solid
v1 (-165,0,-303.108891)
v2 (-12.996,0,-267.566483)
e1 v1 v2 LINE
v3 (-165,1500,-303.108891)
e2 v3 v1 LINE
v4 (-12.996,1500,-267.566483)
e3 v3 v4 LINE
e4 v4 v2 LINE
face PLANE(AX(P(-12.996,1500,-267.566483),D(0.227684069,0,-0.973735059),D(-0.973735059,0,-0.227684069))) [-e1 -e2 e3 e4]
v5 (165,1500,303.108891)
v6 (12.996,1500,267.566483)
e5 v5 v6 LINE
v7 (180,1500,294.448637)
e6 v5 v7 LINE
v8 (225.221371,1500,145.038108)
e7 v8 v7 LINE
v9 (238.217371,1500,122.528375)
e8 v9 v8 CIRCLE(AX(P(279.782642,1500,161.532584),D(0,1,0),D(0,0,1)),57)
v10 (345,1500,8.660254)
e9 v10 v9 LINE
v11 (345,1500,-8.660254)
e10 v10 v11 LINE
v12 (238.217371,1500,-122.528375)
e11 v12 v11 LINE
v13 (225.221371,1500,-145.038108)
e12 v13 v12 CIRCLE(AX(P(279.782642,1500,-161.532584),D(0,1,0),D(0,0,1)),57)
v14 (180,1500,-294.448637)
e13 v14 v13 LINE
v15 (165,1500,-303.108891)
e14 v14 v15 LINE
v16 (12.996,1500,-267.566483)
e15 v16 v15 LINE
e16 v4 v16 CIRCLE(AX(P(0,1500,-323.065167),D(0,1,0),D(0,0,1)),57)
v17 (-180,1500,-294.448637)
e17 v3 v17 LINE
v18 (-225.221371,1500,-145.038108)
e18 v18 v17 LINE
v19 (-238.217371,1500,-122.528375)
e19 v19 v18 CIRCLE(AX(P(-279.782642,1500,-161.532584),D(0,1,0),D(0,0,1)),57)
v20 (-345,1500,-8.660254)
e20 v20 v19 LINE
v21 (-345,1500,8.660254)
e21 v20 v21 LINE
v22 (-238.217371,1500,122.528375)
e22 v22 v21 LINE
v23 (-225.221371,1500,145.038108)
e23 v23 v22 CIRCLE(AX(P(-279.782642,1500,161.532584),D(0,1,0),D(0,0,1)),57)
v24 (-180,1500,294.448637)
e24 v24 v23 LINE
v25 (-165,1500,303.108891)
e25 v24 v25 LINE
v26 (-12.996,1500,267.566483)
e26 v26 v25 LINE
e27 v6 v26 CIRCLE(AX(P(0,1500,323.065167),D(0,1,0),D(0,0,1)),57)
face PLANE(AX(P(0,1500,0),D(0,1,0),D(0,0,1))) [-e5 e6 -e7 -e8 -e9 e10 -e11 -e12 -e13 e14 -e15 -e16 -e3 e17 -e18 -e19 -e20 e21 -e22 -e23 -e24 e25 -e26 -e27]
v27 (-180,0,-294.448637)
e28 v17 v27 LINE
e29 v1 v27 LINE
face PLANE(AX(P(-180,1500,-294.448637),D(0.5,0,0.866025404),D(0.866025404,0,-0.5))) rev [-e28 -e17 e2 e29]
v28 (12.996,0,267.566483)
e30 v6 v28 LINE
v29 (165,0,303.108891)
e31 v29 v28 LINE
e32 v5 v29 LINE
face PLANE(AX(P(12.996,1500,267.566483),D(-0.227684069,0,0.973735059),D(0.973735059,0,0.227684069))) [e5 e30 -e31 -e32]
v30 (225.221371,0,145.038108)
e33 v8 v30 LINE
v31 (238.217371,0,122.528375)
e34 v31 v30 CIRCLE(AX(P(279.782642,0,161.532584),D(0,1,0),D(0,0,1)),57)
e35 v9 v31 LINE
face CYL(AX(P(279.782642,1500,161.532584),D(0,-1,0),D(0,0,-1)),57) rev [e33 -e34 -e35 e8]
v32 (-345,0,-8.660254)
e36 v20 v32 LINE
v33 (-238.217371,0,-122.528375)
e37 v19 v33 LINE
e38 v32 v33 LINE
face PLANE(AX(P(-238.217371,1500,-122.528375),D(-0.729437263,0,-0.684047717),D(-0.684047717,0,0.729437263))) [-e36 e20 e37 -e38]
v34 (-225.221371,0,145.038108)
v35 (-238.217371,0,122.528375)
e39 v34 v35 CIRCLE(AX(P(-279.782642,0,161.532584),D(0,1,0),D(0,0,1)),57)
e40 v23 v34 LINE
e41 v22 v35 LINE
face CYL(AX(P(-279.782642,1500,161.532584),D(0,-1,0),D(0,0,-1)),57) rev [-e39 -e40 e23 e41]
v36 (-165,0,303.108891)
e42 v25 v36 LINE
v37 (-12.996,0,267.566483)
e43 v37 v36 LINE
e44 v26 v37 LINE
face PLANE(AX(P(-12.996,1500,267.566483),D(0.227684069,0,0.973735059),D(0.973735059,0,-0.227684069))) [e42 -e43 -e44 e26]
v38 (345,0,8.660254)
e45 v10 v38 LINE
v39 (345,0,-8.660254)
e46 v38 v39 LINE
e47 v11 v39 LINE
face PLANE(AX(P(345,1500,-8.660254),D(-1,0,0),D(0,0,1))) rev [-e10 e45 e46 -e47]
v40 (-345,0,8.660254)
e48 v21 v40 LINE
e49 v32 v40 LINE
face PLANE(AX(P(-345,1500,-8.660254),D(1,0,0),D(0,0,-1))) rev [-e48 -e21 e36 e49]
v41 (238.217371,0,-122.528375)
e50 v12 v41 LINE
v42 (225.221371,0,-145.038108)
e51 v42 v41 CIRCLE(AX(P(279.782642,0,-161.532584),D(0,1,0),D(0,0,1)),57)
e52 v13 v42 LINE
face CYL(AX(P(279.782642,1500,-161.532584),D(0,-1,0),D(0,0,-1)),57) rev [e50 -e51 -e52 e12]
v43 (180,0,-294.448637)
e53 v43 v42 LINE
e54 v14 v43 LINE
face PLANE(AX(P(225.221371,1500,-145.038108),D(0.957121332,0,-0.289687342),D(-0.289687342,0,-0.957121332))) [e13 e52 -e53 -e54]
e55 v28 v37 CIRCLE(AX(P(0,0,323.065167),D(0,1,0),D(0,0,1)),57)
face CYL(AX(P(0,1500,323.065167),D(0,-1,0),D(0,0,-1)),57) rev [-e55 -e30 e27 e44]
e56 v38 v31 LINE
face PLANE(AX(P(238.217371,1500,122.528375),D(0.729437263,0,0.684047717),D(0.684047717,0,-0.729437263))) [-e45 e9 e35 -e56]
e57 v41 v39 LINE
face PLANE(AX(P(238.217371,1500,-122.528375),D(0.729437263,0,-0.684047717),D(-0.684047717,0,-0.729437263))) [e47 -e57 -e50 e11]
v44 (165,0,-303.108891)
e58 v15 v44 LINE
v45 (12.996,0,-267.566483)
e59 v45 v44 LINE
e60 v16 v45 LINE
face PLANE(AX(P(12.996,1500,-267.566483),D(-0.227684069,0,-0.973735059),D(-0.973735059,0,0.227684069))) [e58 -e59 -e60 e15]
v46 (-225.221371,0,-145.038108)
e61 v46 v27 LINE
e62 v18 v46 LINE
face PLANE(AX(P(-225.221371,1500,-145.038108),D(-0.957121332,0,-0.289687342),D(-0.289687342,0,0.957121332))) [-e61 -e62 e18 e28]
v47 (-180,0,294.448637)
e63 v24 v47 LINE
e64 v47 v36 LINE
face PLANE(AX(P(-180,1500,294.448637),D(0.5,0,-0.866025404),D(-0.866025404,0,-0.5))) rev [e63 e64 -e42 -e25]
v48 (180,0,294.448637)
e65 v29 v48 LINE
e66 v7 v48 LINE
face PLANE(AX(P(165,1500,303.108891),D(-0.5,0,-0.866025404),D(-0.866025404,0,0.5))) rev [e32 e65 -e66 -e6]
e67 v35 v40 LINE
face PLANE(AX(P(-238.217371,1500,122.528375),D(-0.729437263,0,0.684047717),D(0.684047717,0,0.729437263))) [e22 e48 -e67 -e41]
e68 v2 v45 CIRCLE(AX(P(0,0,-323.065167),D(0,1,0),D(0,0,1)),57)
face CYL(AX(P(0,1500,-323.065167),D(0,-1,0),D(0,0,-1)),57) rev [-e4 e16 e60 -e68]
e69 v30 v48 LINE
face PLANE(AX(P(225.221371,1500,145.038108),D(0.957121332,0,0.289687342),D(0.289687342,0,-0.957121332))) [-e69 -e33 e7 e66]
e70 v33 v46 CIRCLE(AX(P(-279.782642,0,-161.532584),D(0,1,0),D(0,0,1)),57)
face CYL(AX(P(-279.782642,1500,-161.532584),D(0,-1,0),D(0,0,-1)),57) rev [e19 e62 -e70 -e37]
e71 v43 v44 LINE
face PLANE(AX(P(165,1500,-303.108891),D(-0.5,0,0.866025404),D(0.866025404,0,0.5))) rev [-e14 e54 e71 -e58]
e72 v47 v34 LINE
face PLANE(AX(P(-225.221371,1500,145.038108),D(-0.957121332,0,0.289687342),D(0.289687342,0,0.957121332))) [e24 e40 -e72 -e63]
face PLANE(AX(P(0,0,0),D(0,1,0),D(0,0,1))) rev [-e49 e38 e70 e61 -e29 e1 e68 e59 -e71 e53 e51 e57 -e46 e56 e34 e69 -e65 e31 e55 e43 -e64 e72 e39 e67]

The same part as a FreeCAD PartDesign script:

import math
import FreeCAD as App
import Part
import Sketcher
Q = App.Units.Quantity

doc = App.newDocument("Part")
body = doc.addObject("PartDesign::Body", "Body")

# Sketch on XZ plane
sketch1 = body.newObject("Sketcher::SketchObject", "Sketch")
sketch1.AttachmentSupport = (doc.getObject("XZ_Plane"), [""])
sketch1.MapMode = "FlatFace"
sketch1.addGeometry([
    Part.LineSegment(App.Vector(345, -9, 0), App.Vector(180, -294, 0)),  # 0
    Part.LineSegment(App.Vector(180, -294, 0), App.Vector(165, -303, 0)),  # 1
    Part.LineSegment(App.Vector(165, -303, 0), App.Vector(-165, -303, 0)),  # 2
    Part.LineSegment(App.Vector(-165, -303, 0), App.Vector(-180, -294, 0)),  # 3
    Part.LineSegment(App.Vector(-180, -294, 0), App.Vector(-345, -9, 0)),  # 4
    Part.LineSegment(App.Vector(-345, -9, 0), App.Vector(-345, 9, 0)),  # 5
    Part.LineSegment(App.Vector(-345, 9, 0), App.Vector(-180, 294, 0)),  # 6
    Part.LineSegment(App.Vector(-180, 294, 0), App.Vector(-165, 303, 0)),  # 7
    Part.LineSegment(App.Vector(-165, 303, 0), App.Vector(165, 303, 0)),  # 8
    Part.LineSegment(App.Vector(165, 303, 0), App.Vector(180, 294, 0)),  # 9
    Part.LineSegment(App.Vector(180, 294, 0), App.Vector(345, 9, 0)),  # 10
    Part.LineSegment(App.Vector(345, 9, 0), App.Vector(345, -9, 0)),  # 11
], False)
sketch1.addConstraint([
    Sketcher.Constraint("Coincident", 0, 2, 1, 1),
    Sketcher.Constraint("Coincident", 1, 2, 2, 1),
    Sketcher.Constraint("Coincident", 2, 2, 3, 1),
    Sketcher.Constraint("Coincident", 3, 2, 4, 1),
    Sketcher.Constraint("Coincident", 4, 2, 5, 1),
    Sketcher.Constraint("Coincident", 5, 2, 6, 1),
    Sketcher.Constraint("Coincident", 6, 2, 7, 1),
    Sketcher.Constraint("Coincident", 7, 2, 8, 1),
    Sketcher.Constraint("Coincident", 8, 2, 9, 1),
    Sketcher.Constraint("Coincident", 9, 2, 10, 1),
    Sketcher.Constraint("Coincident", 10, 2, 11, 1),
    Sketcher.Constraint("Coincident", 11, 2, 0, 1),
    Sketcher.Constraint("Horizontal", 2),
    Sketcher.Constraint("Vertical", 5),
    Sketcher.Constraint("Horizontal", 8),
    Sketcher.Constraint("Vertical", 11),
    Sketcher.Constraint("Symmetric", 0, 2, 6, 2, -1, 1),
    Sketcher.Constraint("Symmetric", 1, 2, 7, 2, -1, 1),
    Sketcher.Constraint("Symmetric", 3, 2, 9, 2, -1, 1),
    Sketcher.Constraint("Symmetric", 4, 2, 10, 2, -1, 1),
    Sketcher.Constraint("Symmetric", 0, 2, 3, 2, -2),
    Sketcher.Constraint("Perpendicular", 0, 3),
    Sketcher.Constraint("Perpendicular", 1, 4),
    Sketcher.Constraint("Perpendicular", 3, 6),
    Sketcher.Constraint("Perpendicular", 6, 9),
    Sketcher.Constraint("Horizontal", 5, 2, 10, 2),
    Sketcher.Constraint("DistanceX", 2, 2, 2, 1, 330.0),
    Sketcher.Constraint("Angle", 0, Q("-120 deg")),
    Sketcher.Constraint("Distance", 0, 330.0),
    Sketcher.Constraint("DistanceX", -1, 1, 0, 2, 180.0),
    Sketcher.Constraint("DistanceY", 5, 1, 5, 2, 17.320508),
])
pad1 = body.newObject("PartDesign::Pad", "Pad")
pad1.Profile = sketch1
pad1.Length = 1500
pad1.Reversed = True

# Sketch on XZ plane
sketch2 = body.newObject("Sketcher::SketchObject", "Sketch001")
sketch2.AttachmentSupport = (doc.getObject("XZ_Plane"), [""])
sketch2.MapMode = "FlatFace"
sketch2.addGeometry([
    Part.LineSegment(App.Vector(238, -123, 0), App.Vector(345, -9, 0)),  # 0
    Part.LineSegment(App.Vector(345, -9, 0), App.Vector(380, -29, 0)),  # 1
    Part.LineSegment(App.Vector(380, -29, 0), App.Vector(334, -178, 0)),  # 2
    Part.ArcOfCircle(Part.Circle(App.Vector(280, -162, 0), App.Vector(0, 0, 1), 57), math.radians(-43), math.radians(-17)),  # 3
    Part.LineSegment(App.Vector(321, -201, 0), App.Vector(215, -315, 0)),  # 4
    Part.LineSegment(App.Vector(215, -315, 0), App.Vector(180, -294, 0)),  # 5
    Part.LineSegment(App.Vector(180, -294, 0), App.Vector(225, -145, 0)),  # 6
    Part.ArcOfCircle(Part.Circle(App.Vector(280, -162, 0), App.Vector(0, 0, 1), 57), math.radians(137), math.radians(163)),  # 7
    Part.LineSegment(App.Vector(225, 145, 0), App.Vector(180, 294, 0)),  # 8
    Part.LineSegment(App.Vector(180, 294, 0), App.Vector(215, 314, 0)),  # 9
    Part.LineSegment(App.Vector(215, 314, 0), App.Vector(321, 201, 0)),  # 10
    Part.ArcOfCircle(Part.Circle(App.Vector(280, 162, 0), App.Vector(0, 0, 1), 57), math.radians(17), math.radians(43)),  # 11
    Part.LineSegment(App.Vector(334, 178, 0), App.Vector(380, 29, 0)),  # 12
    Part.LineSegment(App.Vector(380, 29, 0), App.Vector(345, 9, 0)),  # 13
    Part.LineSegment(App.Vector(345, 9, 0), App.Vector(238, 123, 0)),  # 14
    Part.ArcOfCircle(Part.Circle(App.Vector(280, 162, 0), App.Vector(0, 0, 1), 57), math.radians(-163), math.radians(-137)),  # 15
    Part.LineSegment(App.Vector(13, -268, 0), App.Vector(165, -303, 0)),  # 16
    Part.LineSegment(App.Vector(165, -303, 0), App.Vector(165, -343, 0)),  # 17
    Part.LineSegment(App.Vector(165, -343, 0), App.Vector(13, -379, 0)),  # 18
    Part.ArcOfCircle(Part.Circle(App.Vector(0, -323, 0), App.Vector(0, 0, 1), 57), math.radians(-103), math.radians(-77)),  # 19
    Part.LineSegment(App.Vector(-13, -379, 0), App.Vector(-165, -343, 0)),  # 20
    Part.LineSegment(App.Vector(-165, -343, 0), App.Vector(-165, -303, 0)),  # 21
    Part.LineSegment(App.Vector(-165, -303, 0), App.Vector(-13, -268, 0)),  # 22
    Part.ArcOfCircle(Part.Circle(App.Vector(0, -323, 0), App.Vector(0, 0, 1), 57), math.radians(77), math.radians(103)),  # 23
    Part.LineSegment(App.Vector(-13, 268, 0), App.Vector(-165, 303, 0)),  # 24
    Part.LineSegment(App.Vector(-165, 303, 0), App.Vector(-165, 343, 0)),  # 25
    Part.LineSegment(App.Vector(-165, 343, 0), App.Vector(-13, 379, 0)),  # 26
    Part.ArcOfCircle(Part.Circle(App.Vector(0, 323, 0), App.Vector(0, 0, 1), 57), math.radians(77), math.radians(103)),  # 27
    Part.LineSegment(App.Vector(13, 379, 0), App.Vector(165, 343, 0)),  # 28
    Part.LineSegment(App.Vector(165, 343, 0), App.Vector(165, 303, 0)),  # 29
    Part.LineSegment(App.Vector(165, 303, 0), App.Vector(13, 268, 0)),  # 30
    Part.ArcOfCircle(Part.Circle(App.Vector(0, 323, 0), App.Vector(0, 0, 1), 57), math.radians(-103), math.radians(-77)),  # 31
    Part.LineSegment(App.Vector(-238, 123, 0), App.Vector(-345, 9, 0)),  # 32
    Part.LineSegment(App.Vector(-345, 9, 0), App.Vector(-380, 29, 0)),  # 33
    Part.LineSegment(App.Vector(-380, 29, 0), App.Vector(-334, 178, 0)),  # 34
    Part.ArcOfCircle(Part.Circle(App.Vector(-280, 162, 0), App.Vector(0, 0, 1), 57), math.radians(137), math.radians(163)),  # 35
    Part.LineSegment(App.Vector(-321, 201, 0), App.Vector(-215, 315, 0)),  # 36
    Part.LineSegment(App.Vector(-215, 315, 0), App.Vector(-180, 294, 0)),  # 37
    Part.LineSegment(App.Vector(-180, 294, 0), App.Vector(-225, 145, 0)),  # 38
    Part.ArcOfCircle(Part.Circle(App.Vector(-280, 162, 0), App.Vector(0, 0, 1), 57), math.radians(-43), math.radians(-17)),  # 39
    Part.LineSegment(App.Vector(-225, -145, 0), App.Vector(-180, -294, 0)),  # 40
    Part.LineSegment(App.Vector(-180, -294, 0), App.Vector(-215, -314, 0)),  # 41
    Part.LineSegment(App.Vector(-215, -314, 0), App.Vector(-321, -201, 0)),  # 42
    Part.ArcOfCircle(Part.Circle(App.Vector(-280, -162, 0), App.Vector(0, 0, 1), 57), math.radians(-163), math.radians(-137)),  # 43
    Part.LineSegment(App.Vector(-334, -178, 0), App.Vector(-380, -29, 0)),  # 44
    Part.LineSegment(App.Vector(-380, -29, 0), App.Vector(-345, -9, 0)),  # 45
    Part.LineSegment(App.Vector(-345, -9, 0), App.Vector(-238, -123, 0)),  # 46
    Part.ArcOfCircle(Part.Circle(App.Vector(-280, -162, 0), App.Vector(0, 0, 1), 57), math.radians(17), math.radians(43)),  # 47
], False)
sketch2.addConstraint([
    Sketcher.Constraint("Coincident", 0, 2, 1, 1),
    Sketcher.Constraint("Coincident", 1, 2, 2, 1),
    Sketcher.Constraint("Tangent", 2, 2, 3, 2),
    Sketcher.Constraint("Coincident", 3, 1, 4, 1),
    Sketcher.Constraint("Coincident", 4, 2, 5, 1),
    Sketcher.Constraint("Coincident", 5, 2, 6, 1),
    Sketcher.Constraint("Coincident", 6, 2, 7, 2),
    Sketcher.Constraint("Coincident", 7, 1, 0, 1),
    Sketcher.Constraint("Coincident", 8, 2, 9, 1),
    Sketcher.Constraint("Coincident", 9, 2, 10, 1),
    Sketcher.Constraint("Tangent", 10, 2, 11, 2),
    Sketcher.Constraint("Coincident", 11, 1, 12, 1),
    Sketcher.Constraint("Coincident", 12, 2, 13, 1),
    Sketcher.Constraint("Coincident", 13, 2, 14, 1),
    Sketcher.Constraint("Coincident", 14, 2, 15, 2),
    Sketcher.Constraint("Coincident", 15, 1, 8, 1),
    Sketcher.Constraint("Coincident", 16, 2, 17, 1),
    Sketcher.Constraint("Coincident", 17, 2, 18, 1),
    Sketcher.Constraint("Tangent", 18, 2, 19, 2),
    Sketcher.Constraint("Coincident", 19, 1, 20, 1),
    Sketcher.Constraint("Coincident", 20, 2, 21, 1),
    Sketcher.Constraint("Coincident", 21, 2, 22, 1),
    Sketcher.Constraint("Coincident", 22, 2, 23, 2),
    Sketcher.Constraint("Coincident", 23, 1, 16, 1),
    Sketcher.Constraint("Coincident", 24, 2, 25, 1),
    Sketcher.Constraint("Coincident", 25, 2, 26, 1),
    Sketcher.Constraint("Tangent", 26, 2, 27, 2),
    Sketcher.Constraint("Coincident", 27, 1, 28, 1),
    Sketcher.Constraint("Coincident", 28, 2, 29, 1),
    Sketcher.Constraint("Coincident", 29, 2, 30, 1),
    Sketcher.Constraint("Coincident", 30, 2, 31, 2),
    Sketcher.Constraint("Coincident", 31, 1, 24, 1),
    Sketcher.Constraint("Coincident", 32, 2, 33, 1),
    Sketcher.Constraint("Coincident", 33, 2, 34, 1),
    Sketcher.Constraint("Tangent", 34, 2, 35, 2),
    Sketcher.Constraint("Coincident", 35, 1, 36, 1),
    Sketcher.Constraint("Coincident", 36, 2, 37, 1),
    Sketcher.Constraint("Coincident", 37, 2, 38, 1),
    Sketcher.Constraint("Coincident", 38, 2, 39, 2),
    Sketcher.Constraint("Coincident", 39, 1, 32, 1),
    Sketcher.Constraint("Coincident", 40, 2, 41, 1),
    Sketcher.Constraint("Coincident", 41, 2, 42, 1),
    Sketcher.Constraint("Tangent", 42, 2, 43, 2),
    Sketcher.Constraint("Coincident", 43, 1, 44, 1),
    Sketcher.Constraint("Coincident", 44, 2, 45, 1),
    Sketcher.Constraint("Coincident", 45, 2, 46, 1),
    Sketcher.Constraint("Coincident", 46, 2, 47, 2),
    Sketcher.Constraint("Coincident", 47, 1, 40, 1),
    Sketcher.Constraint("Vertical", 17),
    Sketcher.Constraint("Vertical", 21),
    Sketcher.Constraint("Vertical", 25),
    Sketcher.Constraint("Vertical", 29),
    Sketcher.Constraint("Coincident", 7, 3, 3, 3),
    Sketcher.Constraint("Coincident", 15, 3, 11, 3),
    Sketcher.Constraint("Coincident", 23, 3, 19, 3),
    Sketcher.Constraint("Coincident", 31, 3, 27, 3),
    Sketcher.Constraint("Coincident", 39, 3, 35, 3),
    Sketcher.Constraint("Coincident", 47, 3, 43, 3),
    Sketcher.Constraint("Equal", 3, 7),
    Sketcher.Constraint("Equal", 7, 11),
    Sketcher.Constraint("Equal", 11, 15),
    Sketcher.Constraint("Equal", 15, 19),
    Sketcher.Constraint("Equal", 19, 23),
    Sketcher.Constraint("Equal", 23, 27),
    Sketcher.Constraint("Equal", 27, 31),
    Sketcher.Constraint("Equal", 31, 35),
    Sketcher.Constraint("Equal", 35, 39),
    Sketcher.Constraint("Equal", 39, 43),
    Sketcher.Constraint("Equal", 43, 47),
    Sketcher.Constraint("Symmetric", 19, 3, 27, 3, -1, 1),
    Sketcher.Constraint("Symmetric", 3, 3, 35, 3, -1, 1),
    Sketcher.Constraint("Symmetric", 11, 3, 43, 3, -1, 1),
    Sketcher.Constraint("Symmetric", 16, 2, 24, 2, -1, 1),
    Sketcher.Constraint("Symmetric", 20, 2, 28, 2, -1, 1),
    Sketcher.Constraint("Symmetric", 0, 2, 32, 2, -1, 1),
    Sketcher.Constraint("Symmetric", 1, 2, 33, 2, -1, 1),
    Sketcher.Constraint("Symmetric", 4, 2, 36, 2, -1, 1),
    Sketcher.Constraint("Symmetric", 5, 2, 37, 2, -1, 1),
    Sketcher.Constraint("Symmetric", 8, 2, 40, 2, -1, 1),
    Sketcher.Constraint("Symmetric", 9, 2, 41, 2, -1, 1),
    Sketcher.Constraint("Symmetric", 12, 2, 44, 2, -1, 1),
    Sketcher.Constraint("Symmetric", 13, 2, 45, 2, -1, 1),
    Sketcher.Constraint("Symmetric", 11, 3, 35, 3, -2),
    Sketcher.Constraint("Symmetric", 18, 2, 19, 1, -2),
    Sketcher.Constraint("Symmetric", 16, 2, 21, 2, -2),
    Sketcher.Constraint("Symmetric", 13, 2, 32, 2, -2),
    Sketcher.Constraint("Symmetric", 8, 2, 37, 2, -2),
    Sketcher.Constraint("Parallel", 1, 5),
    Sketcher.Constraint("Parallel", 9, 13),
    Sketcher.Constraint("Parallel", 18, 26),
    Sketcher.Constraint("Parallel", 22, 30),
    Sketcher.Constraint("Parallel", 4, 36),
    Sketcher.Constraint("Parallel", 12, 44),
    Sketcher.Constraint("Horizontal", 22, 2, 23, 1),
    Sketcher.Constraint("Horizontal", 26, 2, 27, 1),
    Sketcher.Constraint("Horizontal", 30, 2, 31, 1),
    Sketcher.Constraint("Horizontal", 11, 1, 34, 2),
    Sketcher.Constraint("Horizontal", 10, 2, 35, 1),
    Sketcher.Constraint("Horizontal", 15, 1, 38, 2),
    Sketcher.Constraint("Horizontal", 14, 2, 39, 1),
    Sketcher.Constraint("Horizontal", 7, 1, 46, 2),
    Sketcher.Constraint("Horizontal", 6, 2, 47, 1),
    Sketcher.Constraint("Vertical", 7, 1, 14, 2),
    Sketcher.Constraint("Vertical", 6, 2, 15, 1),
    Sketcher.Constraint("Vertical", 19, 1, 22, 2),
    Sketcher.Constraint("Vertical", 27, 1, 30, 2),
    Sketcher.Constraint("Equal", 0, 6),
    Sketcher.Constraint("Equal", 1, 9),
    Sketcher.Constraint("Equal", 2, 10),
    Sketcher.Constraint("Equal", 4, 12),
    Sketcher.Constraint("Equal", 5, 13),
    Sketcher.Constraint("Equal", 14, 16),
    Sketcher.Constraint("Equal", 10, 18),
    Sketcher.Constraint("Equal", 12, 20),
    Sketcher.Constraint("Radius", 3, 57.0),
    Sketcher.Constraint("Angle", 1, Q("-30 deg")),
    Sketcher.Constraint("Angle", 9, Q("30 deg")),
    Sketcher.Constraint("DistanceX", -1, 1, 0, 2, 345.0),
    Sketcher.Constraint("DistanceX", -1, 1, 5, 2, 180.0),
    Sketcher.Constraint("DistanceX", -1, 1, 16, 2, 165.0),
    Sketcher.Constraint("DistanceX", -1, 1, 18, 2, 12.996),
    Sketcher.Constraint("DistanceX", 6, 2, 7, 1, 12.996),
    Sketcher.Constraint("DistanceY", 17, 2, 17, 1, 39.860532),
    Sketcher.Constraint("DistanceY", 35, 1, 24, 2, 102.572099),
    Sketcher.Constraint("DistanceY", 21, 1, 21, 2, 40.379067),
    Sketcher.Constraint("DistanceY", 1, 2, -1, 1, 28.59052),
])
pocket1 = body.newObject("PartDesign::Pocket", "Pocket")
pocket1.Profile = sketch2
pocket1.Length = 1500

doc.recompute()
